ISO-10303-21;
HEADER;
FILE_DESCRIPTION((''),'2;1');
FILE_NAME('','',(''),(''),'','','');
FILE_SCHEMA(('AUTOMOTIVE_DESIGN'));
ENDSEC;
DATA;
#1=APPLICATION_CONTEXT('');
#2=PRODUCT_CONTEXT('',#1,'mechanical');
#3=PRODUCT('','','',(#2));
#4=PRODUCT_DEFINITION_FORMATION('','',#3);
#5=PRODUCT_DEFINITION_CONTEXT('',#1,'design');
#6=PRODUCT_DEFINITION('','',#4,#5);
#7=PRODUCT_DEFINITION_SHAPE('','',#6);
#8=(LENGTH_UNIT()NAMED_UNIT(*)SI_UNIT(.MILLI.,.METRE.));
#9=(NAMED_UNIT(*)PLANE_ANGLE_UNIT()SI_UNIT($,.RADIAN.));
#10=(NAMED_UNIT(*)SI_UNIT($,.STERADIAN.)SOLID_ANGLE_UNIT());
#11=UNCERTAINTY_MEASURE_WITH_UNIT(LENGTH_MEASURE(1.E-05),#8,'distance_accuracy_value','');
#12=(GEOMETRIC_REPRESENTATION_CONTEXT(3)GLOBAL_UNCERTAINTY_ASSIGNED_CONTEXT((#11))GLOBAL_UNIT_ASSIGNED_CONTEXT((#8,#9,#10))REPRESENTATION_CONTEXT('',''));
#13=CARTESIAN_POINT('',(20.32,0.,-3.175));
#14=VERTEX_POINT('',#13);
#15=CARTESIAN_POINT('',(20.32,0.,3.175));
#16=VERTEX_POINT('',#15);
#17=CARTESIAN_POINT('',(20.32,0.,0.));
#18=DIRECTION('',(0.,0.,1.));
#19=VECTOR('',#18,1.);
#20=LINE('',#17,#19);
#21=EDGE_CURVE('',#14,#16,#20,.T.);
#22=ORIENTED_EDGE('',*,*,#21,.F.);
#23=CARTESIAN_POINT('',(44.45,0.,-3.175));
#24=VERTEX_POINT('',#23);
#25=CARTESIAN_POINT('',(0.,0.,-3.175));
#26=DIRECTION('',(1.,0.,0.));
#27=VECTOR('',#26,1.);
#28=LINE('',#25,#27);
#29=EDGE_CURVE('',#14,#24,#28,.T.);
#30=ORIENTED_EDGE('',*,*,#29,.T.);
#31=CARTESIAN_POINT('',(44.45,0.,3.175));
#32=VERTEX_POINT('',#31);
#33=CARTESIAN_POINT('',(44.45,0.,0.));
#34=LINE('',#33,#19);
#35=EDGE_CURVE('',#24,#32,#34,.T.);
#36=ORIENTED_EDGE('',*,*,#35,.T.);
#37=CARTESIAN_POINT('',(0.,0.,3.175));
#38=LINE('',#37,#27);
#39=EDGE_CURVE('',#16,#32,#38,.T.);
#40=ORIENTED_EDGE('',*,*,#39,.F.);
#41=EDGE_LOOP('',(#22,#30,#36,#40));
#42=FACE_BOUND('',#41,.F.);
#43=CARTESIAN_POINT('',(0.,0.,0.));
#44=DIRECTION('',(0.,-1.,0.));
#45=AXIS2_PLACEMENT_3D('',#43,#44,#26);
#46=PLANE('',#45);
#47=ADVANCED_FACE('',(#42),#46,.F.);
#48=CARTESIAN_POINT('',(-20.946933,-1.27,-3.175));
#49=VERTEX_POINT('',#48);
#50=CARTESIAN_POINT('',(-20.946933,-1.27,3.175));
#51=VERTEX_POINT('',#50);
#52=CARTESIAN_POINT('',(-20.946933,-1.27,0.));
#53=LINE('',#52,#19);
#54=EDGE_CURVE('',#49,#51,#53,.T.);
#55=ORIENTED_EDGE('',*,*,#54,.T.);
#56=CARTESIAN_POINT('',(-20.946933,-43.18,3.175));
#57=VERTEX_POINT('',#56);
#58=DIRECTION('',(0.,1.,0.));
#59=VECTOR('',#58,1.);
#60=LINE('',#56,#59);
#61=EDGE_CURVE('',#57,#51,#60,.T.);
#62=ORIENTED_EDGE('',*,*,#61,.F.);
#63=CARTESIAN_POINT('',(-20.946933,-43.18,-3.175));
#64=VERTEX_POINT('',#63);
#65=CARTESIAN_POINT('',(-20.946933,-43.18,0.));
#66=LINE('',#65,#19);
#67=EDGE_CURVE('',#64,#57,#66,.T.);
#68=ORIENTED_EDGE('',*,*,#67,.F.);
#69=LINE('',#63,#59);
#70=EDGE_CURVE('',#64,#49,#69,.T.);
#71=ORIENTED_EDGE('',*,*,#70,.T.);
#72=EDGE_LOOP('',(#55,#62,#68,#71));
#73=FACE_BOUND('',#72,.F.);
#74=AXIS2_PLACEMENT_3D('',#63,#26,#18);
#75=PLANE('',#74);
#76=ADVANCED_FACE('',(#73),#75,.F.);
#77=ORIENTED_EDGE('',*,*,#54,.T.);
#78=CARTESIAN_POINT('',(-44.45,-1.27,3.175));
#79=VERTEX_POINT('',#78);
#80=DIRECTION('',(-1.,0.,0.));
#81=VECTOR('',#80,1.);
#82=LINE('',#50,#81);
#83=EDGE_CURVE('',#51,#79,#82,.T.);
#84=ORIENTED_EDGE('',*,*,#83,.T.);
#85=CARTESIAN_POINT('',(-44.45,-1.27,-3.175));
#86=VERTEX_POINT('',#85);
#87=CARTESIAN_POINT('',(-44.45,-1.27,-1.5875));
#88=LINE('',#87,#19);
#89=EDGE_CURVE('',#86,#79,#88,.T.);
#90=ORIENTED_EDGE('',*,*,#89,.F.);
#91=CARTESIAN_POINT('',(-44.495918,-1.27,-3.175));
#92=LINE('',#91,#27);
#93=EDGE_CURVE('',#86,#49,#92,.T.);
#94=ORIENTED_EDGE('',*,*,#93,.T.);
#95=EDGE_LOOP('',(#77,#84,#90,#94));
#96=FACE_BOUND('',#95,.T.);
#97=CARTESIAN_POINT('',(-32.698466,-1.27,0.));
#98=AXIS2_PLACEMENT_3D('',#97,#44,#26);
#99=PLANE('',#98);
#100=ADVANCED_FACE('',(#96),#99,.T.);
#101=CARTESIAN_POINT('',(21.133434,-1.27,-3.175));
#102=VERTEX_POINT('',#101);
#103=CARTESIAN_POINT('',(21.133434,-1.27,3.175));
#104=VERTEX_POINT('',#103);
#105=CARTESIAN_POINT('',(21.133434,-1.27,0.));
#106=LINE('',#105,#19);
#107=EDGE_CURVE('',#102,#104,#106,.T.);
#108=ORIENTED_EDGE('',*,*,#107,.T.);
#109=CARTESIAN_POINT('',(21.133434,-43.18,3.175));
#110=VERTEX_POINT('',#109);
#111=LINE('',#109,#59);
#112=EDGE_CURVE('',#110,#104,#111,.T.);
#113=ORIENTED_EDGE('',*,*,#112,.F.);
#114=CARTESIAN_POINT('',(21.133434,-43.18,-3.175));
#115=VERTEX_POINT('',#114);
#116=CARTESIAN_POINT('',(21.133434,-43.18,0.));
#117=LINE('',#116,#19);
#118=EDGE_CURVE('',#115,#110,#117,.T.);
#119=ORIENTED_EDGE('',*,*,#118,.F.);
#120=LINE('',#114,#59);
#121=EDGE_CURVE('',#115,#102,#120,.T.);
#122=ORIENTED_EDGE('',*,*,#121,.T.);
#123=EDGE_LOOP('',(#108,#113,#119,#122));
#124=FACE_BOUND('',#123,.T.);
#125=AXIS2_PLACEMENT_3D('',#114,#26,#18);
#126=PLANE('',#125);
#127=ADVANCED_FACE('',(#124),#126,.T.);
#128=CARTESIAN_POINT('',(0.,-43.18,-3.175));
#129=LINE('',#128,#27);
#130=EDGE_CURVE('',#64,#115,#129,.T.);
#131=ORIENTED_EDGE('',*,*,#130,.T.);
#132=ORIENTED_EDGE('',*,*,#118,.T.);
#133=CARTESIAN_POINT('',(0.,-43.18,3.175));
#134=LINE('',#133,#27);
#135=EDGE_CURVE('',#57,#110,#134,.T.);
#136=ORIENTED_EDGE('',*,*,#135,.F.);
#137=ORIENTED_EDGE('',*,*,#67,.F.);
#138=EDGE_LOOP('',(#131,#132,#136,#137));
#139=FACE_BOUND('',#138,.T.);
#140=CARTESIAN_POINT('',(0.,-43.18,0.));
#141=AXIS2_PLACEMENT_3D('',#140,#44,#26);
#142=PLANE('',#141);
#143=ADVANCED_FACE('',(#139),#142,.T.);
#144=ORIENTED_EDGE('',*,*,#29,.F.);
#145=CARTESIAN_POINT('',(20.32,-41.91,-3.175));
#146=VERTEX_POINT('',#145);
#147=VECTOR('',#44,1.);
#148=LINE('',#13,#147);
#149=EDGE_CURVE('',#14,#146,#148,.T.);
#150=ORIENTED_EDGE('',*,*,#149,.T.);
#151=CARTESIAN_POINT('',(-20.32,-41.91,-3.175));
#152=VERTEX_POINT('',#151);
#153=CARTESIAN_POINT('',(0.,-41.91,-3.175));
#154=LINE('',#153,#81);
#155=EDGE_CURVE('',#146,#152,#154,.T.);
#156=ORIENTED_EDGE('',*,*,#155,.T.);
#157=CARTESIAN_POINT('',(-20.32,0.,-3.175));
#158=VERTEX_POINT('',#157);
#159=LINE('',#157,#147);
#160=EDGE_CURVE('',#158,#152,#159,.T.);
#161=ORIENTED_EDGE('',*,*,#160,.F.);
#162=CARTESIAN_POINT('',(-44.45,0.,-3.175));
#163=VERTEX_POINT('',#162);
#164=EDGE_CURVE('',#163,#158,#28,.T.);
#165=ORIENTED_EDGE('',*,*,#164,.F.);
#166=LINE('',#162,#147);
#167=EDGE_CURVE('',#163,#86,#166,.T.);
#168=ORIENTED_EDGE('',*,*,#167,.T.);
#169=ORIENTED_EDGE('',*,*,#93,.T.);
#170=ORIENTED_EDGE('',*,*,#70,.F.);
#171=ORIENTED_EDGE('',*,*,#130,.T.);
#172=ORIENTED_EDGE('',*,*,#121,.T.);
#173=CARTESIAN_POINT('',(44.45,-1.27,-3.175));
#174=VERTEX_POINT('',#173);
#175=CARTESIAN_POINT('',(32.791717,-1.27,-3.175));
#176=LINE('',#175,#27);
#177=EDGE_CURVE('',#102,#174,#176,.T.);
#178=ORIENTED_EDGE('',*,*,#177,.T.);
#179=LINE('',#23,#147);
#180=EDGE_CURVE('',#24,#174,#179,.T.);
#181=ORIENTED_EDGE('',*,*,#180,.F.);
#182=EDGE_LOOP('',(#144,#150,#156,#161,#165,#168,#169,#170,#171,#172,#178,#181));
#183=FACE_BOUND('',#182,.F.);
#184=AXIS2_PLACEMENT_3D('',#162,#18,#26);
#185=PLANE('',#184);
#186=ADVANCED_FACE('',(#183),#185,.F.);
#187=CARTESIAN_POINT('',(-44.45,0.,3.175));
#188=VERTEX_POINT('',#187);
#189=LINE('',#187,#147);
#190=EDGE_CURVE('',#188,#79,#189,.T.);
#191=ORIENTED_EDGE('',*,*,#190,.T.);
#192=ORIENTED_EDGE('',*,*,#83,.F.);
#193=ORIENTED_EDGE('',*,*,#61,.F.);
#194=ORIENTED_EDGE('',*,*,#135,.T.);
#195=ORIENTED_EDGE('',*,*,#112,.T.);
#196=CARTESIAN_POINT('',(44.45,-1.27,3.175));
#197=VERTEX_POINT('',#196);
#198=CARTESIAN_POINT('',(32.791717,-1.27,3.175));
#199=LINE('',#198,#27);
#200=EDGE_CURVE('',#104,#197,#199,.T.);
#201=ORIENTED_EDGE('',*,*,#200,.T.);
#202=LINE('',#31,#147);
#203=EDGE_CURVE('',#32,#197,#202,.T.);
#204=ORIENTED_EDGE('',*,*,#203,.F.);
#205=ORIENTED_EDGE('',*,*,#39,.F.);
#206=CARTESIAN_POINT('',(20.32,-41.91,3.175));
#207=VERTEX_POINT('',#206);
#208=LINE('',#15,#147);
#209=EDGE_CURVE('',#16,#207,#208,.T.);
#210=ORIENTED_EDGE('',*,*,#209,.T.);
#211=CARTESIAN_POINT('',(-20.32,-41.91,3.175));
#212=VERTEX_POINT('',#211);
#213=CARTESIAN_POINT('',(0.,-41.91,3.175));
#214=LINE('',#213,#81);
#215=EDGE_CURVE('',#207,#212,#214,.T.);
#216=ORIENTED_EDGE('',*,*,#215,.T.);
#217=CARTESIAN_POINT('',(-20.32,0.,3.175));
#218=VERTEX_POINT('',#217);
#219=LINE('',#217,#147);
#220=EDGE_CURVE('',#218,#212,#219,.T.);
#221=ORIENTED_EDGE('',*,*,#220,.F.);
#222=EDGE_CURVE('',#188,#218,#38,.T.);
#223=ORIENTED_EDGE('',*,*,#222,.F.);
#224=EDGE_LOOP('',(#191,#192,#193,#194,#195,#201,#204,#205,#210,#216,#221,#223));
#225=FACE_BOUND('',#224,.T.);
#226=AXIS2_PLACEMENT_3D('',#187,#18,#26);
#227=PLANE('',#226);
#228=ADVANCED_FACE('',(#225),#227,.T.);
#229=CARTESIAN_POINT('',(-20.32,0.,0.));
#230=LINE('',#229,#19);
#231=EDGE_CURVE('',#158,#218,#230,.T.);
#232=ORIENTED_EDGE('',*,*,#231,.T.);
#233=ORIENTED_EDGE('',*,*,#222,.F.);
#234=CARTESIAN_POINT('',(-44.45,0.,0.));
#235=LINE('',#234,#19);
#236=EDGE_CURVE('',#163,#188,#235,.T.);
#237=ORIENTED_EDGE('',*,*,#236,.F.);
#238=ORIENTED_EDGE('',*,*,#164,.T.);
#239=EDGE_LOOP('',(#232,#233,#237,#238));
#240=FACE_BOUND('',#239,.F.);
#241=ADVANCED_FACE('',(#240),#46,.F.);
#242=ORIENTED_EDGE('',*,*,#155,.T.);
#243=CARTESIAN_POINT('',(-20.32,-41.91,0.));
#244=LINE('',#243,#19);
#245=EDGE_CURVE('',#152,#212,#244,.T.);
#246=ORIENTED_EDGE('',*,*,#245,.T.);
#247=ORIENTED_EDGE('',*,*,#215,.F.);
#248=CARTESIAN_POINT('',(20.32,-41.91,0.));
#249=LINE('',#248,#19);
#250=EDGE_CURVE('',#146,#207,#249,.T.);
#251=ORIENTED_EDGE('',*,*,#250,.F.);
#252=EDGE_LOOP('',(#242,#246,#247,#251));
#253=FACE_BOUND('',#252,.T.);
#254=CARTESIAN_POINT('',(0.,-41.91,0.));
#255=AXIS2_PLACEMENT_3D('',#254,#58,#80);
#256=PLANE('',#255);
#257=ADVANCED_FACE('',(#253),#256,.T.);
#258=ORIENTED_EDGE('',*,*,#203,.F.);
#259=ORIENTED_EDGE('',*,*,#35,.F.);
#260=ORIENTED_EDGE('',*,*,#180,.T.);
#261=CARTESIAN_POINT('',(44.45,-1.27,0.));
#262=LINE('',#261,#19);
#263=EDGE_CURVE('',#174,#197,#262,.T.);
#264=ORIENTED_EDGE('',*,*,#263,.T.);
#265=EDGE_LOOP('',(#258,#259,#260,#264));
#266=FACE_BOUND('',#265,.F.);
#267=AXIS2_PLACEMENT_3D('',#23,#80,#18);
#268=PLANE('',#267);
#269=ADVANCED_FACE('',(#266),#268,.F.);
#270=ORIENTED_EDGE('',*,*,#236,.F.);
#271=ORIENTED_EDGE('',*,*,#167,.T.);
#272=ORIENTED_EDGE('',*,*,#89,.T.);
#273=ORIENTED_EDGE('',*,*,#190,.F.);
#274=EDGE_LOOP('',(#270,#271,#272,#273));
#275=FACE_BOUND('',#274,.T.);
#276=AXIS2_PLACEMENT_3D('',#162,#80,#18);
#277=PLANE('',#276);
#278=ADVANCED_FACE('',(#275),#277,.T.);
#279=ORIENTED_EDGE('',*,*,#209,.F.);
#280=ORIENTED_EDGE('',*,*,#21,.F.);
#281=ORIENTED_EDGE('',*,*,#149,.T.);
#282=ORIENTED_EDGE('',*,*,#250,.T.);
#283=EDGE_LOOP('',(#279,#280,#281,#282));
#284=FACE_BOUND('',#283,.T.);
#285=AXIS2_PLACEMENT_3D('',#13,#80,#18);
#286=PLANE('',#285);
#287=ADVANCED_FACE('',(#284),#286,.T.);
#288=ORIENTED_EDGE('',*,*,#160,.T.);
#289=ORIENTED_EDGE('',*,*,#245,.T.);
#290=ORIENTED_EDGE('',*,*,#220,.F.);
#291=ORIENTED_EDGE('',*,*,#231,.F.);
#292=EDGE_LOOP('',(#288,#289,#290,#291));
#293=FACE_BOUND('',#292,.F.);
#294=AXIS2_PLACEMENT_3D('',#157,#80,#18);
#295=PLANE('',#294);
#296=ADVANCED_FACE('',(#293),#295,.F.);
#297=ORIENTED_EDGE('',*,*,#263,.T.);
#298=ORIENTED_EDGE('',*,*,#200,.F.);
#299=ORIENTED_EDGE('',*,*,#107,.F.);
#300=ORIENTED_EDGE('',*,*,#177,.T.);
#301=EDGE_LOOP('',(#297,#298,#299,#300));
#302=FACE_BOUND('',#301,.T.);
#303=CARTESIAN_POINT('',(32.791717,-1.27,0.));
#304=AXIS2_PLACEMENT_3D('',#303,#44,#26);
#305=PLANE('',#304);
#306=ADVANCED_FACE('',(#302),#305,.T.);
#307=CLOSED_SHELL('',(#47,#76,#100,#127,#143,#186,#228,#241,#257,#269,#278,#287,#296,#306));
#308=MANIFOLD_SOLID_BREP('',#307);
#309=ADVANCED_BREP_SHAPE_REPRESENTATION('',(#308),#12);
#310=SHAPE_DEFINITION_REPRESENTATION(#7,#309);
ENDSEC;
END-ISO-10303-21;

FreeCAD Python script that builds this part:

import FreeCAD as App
import Part
import Sketcher
Q = App.Units.Quantity

doc = App.newDocument("Part")
body = doc.addObject("PartDesign::Body", "Body")

# Sketch on XZ plane
sketch1 = body.newObject("Sketcher::SketchObject", "Sketch")
sketch1.AttachmentSupport = (doc.getObject("XZ_Plane"), [""])
sketch1.MapMode = "FlatFace"
sketch1.addGeometry([
    Part.LineSegment(App.Vector(-44.45, 3.175, 0), App.Vector(-44.45, -3.175, 0)),
    Part.LineSegment(App.Vector(-44.45, -3.175, 0), App.Vector(44.45, -3.175, 0)),
    Part.LineSegment(App.Vector(44.45, -3.175, 0), App.Vector(44.45, 3.175, 0)),
    Part.LineSegment(App.Vector(44.45, 3.175, 0), App.Vector(-44.45, 3.175, 0)),
], False)
sketch1.addConstraint([
    Sketcher.Constraint("Coincident", 0, 2, 1, 1),
    Sketcher.Constraint("Coincident", 1, 2, 2, 1),
    Sketcher.Constraint("Coincident", 2, 2, 3, 1),
    Sketcher.Constraint("Coincident", 3, 2, 0, 1),
    Sketcher.Constraint("Vertical", 0),
    Sketcher.Constraint("Horizontal", 1),
    Sketcher.Constraint("Vertical", 2),
    Sketcher.Constraint("Horizontal", 3),
    Sketcher.Constraint("Symmetric", 0, 2, 2, 2, -1, 1),
    Sketcher.Constraint("DistanceX", 1, 1, 1, 2, Q("3.5 in")),
    Sketcher.Constraint("DistanceY", 0, 2, 0, 1, Q("0.25 in")),
])
pad1 = body.newObject("PartDesign::Pad", "Pad")
pad1.Profile = sketch1
pad1.Length = Q("1.7 in")

# Sketch on XZ plane
sketch2 = body.newObject("Sketcher::SketchObject", "Sketch001")
sketch2.AttachmentSupport = (doc.getObject("XZ_Plane"), [""])
sketch2.MapMode = "FlatFace"
sketch2.addGeometry([
    Part.LineSegment(App.Vector(20.32, 3.175, 0), App.Vector(20.32, -3.175, 0)),
    Part.LineSegment(App.Vector(20.32, -3.175, 0), App.Vector(-20.32, -3.175, 0)),
    Part.LineSegment(App.Vector(-20.32, -3.175, 0), App.Vector(-20.32, 3.175, 0)),
    Part.LineSegment(App.Vector(-20.32, 3.175, 0), App.Vector(20.32, 3.175, 0)),
], False)
sketch2.addConstraint([
    Sketcher.Constraint("Coincident", 0, 2, 1, 1),
    Sketcher.Constraint("Coincident", 1, 2, 2, 1),
    Sketcher.Constraint("Coincident", 2, 2, 3, 1),
    Sketcher.Constraint("Coincident", 3, 2, 0, 1),
    Sketcher.Constraint("Vertical", 0),
    Sketcher.Constraint("Horizontal", 1),
    Sketcher.Constraint("Vertical", 2),
    Sketcher.Constraint("Horizontal", 3),
    Sketcher.Constraint("Symmetric", 0, 2, 2, 2, -1, 1),
    Sketcher.Constraint("DistanceX", 1, 2, 1, 1, Q("1.6 in")),
    Sketcher.Constraint("DistanceY", 0, 2, 0, 1, Q("0.25 in")),
])
pocket1 = body.newObject("PartDesign::Pocket", "Pocket")
pocket1.Profile = sketch2
pocket1.Length = Q("1.65 in")
pocket1.Reversed = True

# Sketch on XZ plane
sketch3 = body.newObject("Sketcher::SketchObject", "Sketch002")
sketch3.AttachmentSupport = (doc.getObject("XZ_Plane"), [""])
sketch3.MapMode = "FlatFace"
sketch3.AttachmentOffset = App.Placement(App.Vector(0, 0, 1.7 * 25.4), App.Rotation())
sketch3.addGeometry([
    Part.LineSegment(App.Vector(-20.946933, -3.175, 0), App.Vector(-20.946933, 3.175, 0)),
    Part.LineSegment(App.Vector(-20.946933, 3.175, 0), App.Vector(-44.495918, 3.175, 0)),
    Part.LineSegment(App.Vector(-44.495918, 3.175, 0), App.Vector(-44.495918, -3.175, 0)),
    Part.LineSegment(App.Vector(-44.495918, -3.175, 0), App.Vector(-20.946933, -3.175, 0)),
], False)
sketch3.addConstraint([
    Sketcher.Constraint("Coincident", 0, 2, 1, 1),
    Sketcher.Constraint("Coincident", 1, 2, 2, 1),
    Sketcher.Constraint("Coincident", 2, 2, 3, 1),
    Sketcher.Constraint("Coincident", 3, 2, 0, 1),
    Sketcher.Constraint("Vertical", 0),
    Sketcher.Constraint("Horizontal", 1),
    Sketcher.Constraint("Vertical", 2),
    Sketcher.Constraint("Horizontal", 3),
    Sketcher.Constraint("DistanceY", 0, 1, 0, 2, Q("0.25 in")),
    Sketcher.Constraint("DistanceY", -1, 1, 0, 2, Q("0.125 in")),
    Sketcher.Constraint("DistanceX", 1, 2, 1, 1, Q("23.548985 mm")),
    Sketcher.Constraint("DistanceX", 0, 2, -1, 1, Q("20.946933 mm")),
])
pocket2 = body.newObject("PartDesign::Pocket", "Pocket001")
pocket2.Profile = sketch3
pocket2.Length = Q("1.65 in")

# Sketch on XZ plane
sketch4 = body.newObject("Sketcher::SketchObject", "Sketch003")
sketch4.AttachmentSupport = (doc.getObject("XZ_Plane"), [""])
sketch4.MapMode = "FlatFace"
sketch4.AttachmentOffset = App.Placement(App.Vector(0, 0, 1.7 * 25.4), App.Rotation())
sketch4.addGeometry([
    Part.LineSegment(App.Vector(21.133434, 3.175, 0), App.Vector(21.133434, -3.175, 0)),
    Part.LineSegment(App.Vector(21.133434, -3.175, 0), App.Vector(44.45, -3.175, 0)),
    Part.LineSegment(App.Vector(44.45, -3.175, 0), App.Vector(44.45, 3.175, 0)),
    Part.LineSegment(App.Vector(44.45, 3.175, 0), App.Vector(21.133434, 3.175, 0)),
], False)
sketch4.addConstraint([
    Sketcher.Constraint("Coincident", 0, 2, 1, 1),
    Sketcher.Constraint("Coincident", 1, 2, 2, 1),
    Sketcher.Constraint("Coincident", 2, 2, 3, 1),
    Sketcher.Constraint("Coincident", 3, 2, 0, 1),
    Sketcher.Constraint("Vertical", 0),
    Sketcher.Constraint("Horizontal", 1),
    Sketcher.Constraint("Vertical", 2),
    Sketcher.Constraint("Horizontal", 3),
    Sketcher.Constraint("DistanceY", 0, 2, 0, 1, Q("0.25 in")),
    Sketcher.Constraint("DistanceX", -1, 1, 1, 2, Q("1.75 in")),
    Sketcher.Constraint("DistanceY", 0, 2, -1, 1, Q("0.125 in")),
    Sketcher.Constraint("DistanceX", 1, 1, 1, 2, Q("23.316566 mm")),
])
pocket3 = body.newObject("PartDesign::Pocket", "Pocket002")
pocket3.Profile = sketch4
pocket3.Length = Q("1.65 in")

doc.recompute()
